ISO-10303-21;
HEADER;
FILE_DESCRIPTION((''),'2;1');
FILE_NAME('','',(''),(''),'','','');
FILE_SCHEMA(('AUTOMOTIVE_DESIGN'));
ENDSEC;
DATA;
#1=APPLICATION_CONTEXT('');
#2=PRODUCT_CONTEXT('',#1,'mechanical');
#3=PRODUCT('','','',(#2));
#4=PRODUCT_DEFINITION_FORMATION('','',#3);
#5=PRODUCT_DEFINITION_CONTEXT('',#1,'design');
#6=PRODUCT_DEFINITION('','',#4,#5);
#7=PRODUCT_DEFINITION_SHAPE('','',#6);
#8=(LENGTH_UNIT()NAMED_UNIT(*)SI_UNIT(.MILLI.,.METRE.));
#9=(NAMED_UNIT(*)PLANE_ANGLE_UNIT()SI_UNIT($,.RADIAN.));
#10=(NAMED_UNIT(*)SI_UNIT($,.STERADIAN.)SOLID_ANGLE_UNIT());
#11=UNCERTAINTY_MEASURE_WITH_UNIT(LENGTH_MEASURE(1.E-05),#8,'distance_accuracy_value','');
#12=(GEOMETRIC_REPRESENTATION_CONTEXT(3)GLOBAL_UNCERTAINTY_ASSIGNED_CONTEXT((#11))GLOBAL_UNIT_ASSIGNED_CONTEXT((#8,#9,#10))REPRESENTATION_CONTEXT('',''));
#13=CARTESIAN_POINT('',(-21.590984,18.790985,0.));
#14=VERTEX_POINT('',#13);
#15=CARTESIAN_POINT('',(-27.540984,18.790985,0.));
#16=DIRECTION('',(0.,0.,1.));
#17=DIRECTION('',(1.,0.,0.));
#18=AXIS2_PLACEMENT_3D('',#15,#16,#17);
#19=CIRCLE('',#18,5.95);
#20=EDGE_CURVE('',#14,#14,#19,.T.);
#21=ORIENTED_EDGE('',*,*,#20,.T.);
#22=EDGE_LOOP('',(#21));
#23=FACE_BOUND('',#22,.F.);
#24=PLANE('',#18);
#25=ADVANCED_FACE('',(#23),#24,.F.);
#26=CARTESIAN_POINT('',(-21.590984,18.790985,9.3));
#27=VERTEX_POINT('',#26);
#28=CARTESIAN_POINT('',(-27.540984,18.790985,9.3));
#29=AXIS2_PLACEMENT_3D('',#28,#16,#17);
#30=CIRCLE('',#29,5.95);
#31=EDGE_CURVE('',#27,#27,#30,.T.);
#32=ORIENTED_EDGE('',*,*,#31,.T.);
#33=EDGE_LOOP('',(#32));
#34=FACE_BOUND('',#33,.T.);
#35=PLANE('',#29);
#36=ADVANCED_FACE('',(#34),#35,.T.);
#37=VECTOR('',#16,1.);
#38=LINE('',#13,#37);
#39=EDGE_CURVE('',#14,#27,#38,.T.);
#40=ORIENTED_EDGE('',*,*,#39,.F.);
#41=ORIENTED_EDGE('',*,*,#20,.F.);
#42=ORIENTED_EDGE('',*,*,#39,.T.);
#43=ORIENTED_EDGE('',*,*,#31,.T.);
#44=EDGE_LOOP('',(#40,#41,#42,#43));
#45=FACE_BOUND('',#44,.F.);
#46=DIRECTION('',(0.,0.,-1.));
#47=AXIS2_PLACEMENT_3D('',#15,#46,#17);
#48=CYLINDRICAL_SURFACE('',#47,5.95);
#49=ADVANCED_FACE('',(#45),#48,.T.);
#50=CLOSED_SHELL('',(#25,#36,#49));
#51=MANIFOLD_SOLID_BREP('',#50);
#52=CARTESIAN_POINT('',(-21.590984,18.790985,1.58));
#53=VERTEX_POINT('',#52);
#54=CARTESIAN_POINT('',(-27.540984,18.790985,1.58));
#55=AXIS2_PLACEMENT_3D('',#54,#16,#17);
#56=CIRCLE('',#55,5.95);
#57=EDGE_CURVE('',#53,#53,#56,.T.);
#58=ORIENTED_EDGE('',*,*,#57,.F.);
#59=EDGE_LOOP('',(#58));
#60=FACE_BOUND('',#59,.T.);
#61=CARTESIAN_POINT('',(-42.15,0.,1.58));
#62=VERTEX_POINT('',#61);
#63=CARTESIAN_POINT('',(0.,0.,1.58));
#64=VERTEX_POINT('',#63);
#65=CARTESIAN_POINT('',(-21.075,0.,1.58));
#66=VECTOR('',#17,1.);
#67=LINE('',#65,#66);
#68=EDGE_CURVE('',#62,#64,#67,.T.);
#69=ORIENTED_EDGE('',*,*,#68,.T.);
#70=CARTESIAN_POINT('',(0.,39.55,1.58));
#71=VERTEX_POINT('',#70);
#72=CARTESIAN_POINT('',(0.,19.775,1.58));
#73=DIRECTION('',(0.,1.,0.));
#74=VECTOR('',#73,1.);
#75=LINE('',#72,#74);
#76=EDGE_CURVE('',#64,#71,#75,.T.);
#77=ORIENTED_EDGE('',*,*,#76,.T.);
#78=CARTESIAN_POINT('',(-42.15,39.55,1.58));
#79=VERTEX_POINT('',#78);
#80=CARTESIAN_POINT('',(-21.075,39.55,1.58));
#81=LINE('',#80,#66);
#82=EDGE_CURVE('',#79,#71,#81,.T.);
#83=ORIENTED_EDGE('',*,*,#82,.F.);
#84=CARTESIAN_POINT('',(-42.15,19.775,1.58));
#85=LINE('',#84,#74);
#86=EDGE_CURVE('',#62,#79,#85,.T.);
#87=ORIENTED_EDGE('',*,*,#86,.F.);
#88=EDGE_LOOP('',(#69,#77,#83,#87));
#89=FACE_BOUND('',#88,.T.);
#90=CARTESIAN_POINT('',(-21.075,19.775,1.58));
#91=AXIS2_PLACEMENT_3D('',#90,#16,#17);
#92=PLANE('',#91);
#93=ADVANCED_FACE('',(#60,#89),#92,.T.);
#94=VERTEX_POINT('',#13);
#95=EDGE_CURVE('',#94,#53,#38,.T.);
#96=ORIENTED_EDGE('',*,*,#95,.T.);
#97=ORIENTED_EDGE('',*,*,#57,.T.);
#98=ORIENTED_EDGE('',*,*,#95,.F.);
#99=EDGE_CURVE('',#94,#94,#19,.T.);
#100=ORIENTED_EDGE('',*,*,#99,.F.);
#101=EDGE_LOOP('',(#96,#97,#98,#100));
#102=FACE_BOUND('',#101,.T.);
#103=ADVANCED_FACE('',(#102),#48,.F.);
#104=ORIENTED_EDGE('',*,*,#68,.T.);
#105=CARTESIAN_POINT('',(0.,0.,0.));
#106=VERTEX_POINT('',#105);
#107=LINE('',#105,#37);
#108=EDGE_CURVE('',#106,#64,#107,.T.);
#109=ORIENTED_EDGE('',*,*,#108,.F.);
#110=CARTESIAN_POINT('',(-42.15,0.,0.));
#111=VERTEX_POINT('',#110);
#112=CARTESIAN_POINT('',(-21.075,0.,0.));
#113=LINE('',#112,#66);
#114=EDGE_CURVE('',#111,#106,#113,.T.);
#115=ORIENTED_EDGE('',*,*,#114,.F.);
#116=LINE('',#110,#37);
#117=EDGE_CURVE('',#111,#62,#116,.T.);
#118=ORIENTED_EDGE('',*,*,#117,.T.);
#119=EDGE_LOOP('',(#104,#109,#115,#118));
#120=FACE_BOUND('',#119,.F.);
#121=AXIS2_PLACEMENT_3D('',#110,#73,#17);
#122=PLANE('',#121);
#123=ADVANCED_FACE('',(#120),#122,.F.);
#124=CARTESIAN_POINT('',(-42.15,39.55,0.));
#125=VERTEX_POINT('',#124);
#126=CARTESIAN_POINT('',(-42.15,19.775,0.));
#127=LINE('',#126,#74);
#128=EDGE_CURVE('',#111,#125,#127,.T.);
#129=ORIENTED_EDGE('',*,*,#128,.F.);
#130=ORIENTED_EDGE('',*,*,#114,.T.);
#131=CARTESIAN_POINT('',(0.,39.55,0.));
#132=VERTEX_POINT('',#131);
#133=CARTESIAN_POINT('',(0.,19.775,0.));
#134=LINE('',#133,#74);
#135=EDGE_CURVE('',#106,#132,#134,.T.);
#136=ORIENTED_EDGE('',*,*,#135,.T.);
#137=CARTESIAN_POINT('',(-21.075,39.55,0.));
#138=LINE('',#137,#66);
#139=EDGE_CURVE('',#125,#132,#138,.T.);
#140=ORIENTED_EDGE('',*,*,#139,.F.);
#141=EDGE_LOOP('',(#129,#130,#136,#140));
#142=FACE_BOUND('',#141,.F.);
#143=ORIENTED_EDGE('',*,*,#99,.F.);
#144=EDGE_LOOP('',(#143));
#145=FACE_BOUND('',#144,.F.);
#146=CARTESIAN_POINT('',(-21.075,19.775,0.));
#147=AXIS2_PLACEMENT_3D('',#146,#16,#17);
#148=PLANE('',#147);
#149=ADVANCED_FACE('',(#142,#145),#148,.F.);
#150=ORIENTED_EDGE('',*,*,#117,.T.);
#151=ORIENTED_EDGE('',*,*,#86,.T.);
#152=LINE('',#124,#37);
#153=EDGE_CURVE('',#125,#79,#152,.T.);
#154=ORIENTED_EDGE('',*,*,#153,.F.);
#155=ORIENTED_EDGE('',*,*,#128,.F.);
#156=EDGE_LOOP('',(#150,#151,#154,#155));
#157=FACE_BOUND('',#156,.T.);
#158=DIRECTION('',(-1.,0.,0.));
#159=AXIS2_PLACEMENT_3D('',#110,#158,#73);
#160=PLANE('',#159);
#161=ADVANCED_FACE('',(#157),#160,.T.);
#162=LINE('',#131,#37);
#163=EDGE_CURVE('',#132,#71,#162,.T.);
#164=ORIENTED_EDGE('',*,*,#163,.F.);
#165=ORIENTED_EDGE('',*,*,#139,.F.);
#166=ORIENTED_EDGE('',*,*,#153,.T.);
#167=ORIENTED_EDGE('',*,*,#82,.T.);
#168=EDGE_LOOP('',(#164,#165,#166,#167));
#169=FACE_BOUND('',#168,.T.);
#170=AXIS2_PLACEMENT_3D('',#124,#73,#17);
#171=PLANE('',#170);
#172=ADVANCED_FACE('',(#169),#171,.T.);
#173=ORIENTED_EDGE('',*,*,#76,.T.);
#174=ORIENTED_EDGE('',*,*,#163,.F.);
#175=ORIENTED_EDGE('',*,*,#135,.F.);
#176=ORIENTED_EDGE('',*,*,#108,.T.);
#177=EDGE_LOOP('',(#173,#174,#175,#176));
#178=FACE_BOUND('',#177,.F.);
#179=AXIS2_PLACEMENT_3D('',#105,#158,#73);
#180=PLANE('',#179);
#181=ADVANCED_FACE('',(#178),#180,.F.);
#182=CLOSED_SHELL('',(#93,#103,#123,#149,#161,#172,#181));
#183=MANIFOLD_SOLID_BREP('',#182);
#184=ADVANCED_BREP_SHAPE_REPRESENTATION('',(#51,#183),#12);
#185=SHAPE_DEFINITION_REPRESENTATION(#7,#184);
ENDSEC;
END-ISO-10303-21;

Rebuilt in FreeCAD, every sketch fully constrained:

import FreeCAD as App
import Part
import Sketcher
from FreeCAD import Vector
Q = App.Units.Quantity


def add_polygon(sketch, points):
    """Adds a closed chain of lines whose ends are joined by coincident constraints."""
    first, n = sketch.GeometryCount, len(points)
    for a, b in zip(points, points[1:] + points[:1]):
        sketch.addGeometry(Part.LineSegment(App.Vector(*a, 0), App.Vector(*b, 0)), False)
    for i in range(n):
        sketch.addConstraint(Sketcher.Constraint("Coincident", first + i, 2, first + (i + 1) % n, 1))

doc = App.newDocument("Part")
body = doc.addObject("PartDesign::Body", "Body")

# Sketch on XY plane
sketch1 = body.newObject("Sketcher::SketchObject", "Sketch")
sketch1.AttachmentSupport = (doc.getObject("XY_Plane"), [""])
sketch1.MapMode = "FlatFace"
sketch1.addGeometry(Part.Circle(Vector(-28, 19, 0), Vector(0, 0, 1), 6), False)
sketch1.addConstraint([
    Sketcher.Constraint("Diameter", 0, Q("11.9 mm")),
    Sketcher.Constraint("DistanceX", 0, 3, -1, 1, Q("27.540984 mm")),
    Sketcher.Constraint("DistanceY", -1, 1, 0, 3, Q("18.790985 mm")),
])
pad1 = body.newObject("PartDesign::Pad", "Pad")
pad1.Profile = sketch1
pad1.Length = 9.3
body2 = doc.addObject("PartDesign::Body", "Body001")

# Sketch on XY plane
sketch2 = body2.newObject("Sketcher::SketchObject", "Sketch001")
sketch2.AttachmentSupport = (doc.getObject("XY_Plane001"), [""])
sketch2.MapMode = "FlatFace"
add_polygon(sketch2, [(-42, 40), (-42, 0), (0, 0), (0, 40)])  # lines 0-3
sketch2.addGeometry(Part.Circle(Vector(-28, 19, 0), Vector(0, 0, 1), 6), False)  # 4
sketch2.addConstraint([
    Sketcher.Constraint("Vertical", 0),
    Sketcher.Constraint("Horizontal", 1),
    Sketcher.Constraint("Vertical", 2),
    Sketcher.Constraint("Horizontal", 3),
    Sketcher.Constraint("Coincident", 1, 2, -1, 1),
    Sketcher.Constraint("Diameter", 4, Q("11.9 mm")),
    Sketcher.Constraint("DistanceX", 1, 1, 1, 2, Q("42.15 mm")),
    Sketcher.Constraint("DistanceY", 0, 2, 0, 1, Q("39.55 mm")),
    Sketcher.Constraint("DistanceX", 4, 3, -1, 1, Q("27.540984 mm")),
    Sketcher.Constraint("DistanceY", -1, 1, 4, 3, Q("18.790985 mm")),
])
pad2 = body2.newObject("PartDesign::Pad", "Pad001")
pad2.Profile = sketch2
pad2.Length = 1.58

doc.recompute()
